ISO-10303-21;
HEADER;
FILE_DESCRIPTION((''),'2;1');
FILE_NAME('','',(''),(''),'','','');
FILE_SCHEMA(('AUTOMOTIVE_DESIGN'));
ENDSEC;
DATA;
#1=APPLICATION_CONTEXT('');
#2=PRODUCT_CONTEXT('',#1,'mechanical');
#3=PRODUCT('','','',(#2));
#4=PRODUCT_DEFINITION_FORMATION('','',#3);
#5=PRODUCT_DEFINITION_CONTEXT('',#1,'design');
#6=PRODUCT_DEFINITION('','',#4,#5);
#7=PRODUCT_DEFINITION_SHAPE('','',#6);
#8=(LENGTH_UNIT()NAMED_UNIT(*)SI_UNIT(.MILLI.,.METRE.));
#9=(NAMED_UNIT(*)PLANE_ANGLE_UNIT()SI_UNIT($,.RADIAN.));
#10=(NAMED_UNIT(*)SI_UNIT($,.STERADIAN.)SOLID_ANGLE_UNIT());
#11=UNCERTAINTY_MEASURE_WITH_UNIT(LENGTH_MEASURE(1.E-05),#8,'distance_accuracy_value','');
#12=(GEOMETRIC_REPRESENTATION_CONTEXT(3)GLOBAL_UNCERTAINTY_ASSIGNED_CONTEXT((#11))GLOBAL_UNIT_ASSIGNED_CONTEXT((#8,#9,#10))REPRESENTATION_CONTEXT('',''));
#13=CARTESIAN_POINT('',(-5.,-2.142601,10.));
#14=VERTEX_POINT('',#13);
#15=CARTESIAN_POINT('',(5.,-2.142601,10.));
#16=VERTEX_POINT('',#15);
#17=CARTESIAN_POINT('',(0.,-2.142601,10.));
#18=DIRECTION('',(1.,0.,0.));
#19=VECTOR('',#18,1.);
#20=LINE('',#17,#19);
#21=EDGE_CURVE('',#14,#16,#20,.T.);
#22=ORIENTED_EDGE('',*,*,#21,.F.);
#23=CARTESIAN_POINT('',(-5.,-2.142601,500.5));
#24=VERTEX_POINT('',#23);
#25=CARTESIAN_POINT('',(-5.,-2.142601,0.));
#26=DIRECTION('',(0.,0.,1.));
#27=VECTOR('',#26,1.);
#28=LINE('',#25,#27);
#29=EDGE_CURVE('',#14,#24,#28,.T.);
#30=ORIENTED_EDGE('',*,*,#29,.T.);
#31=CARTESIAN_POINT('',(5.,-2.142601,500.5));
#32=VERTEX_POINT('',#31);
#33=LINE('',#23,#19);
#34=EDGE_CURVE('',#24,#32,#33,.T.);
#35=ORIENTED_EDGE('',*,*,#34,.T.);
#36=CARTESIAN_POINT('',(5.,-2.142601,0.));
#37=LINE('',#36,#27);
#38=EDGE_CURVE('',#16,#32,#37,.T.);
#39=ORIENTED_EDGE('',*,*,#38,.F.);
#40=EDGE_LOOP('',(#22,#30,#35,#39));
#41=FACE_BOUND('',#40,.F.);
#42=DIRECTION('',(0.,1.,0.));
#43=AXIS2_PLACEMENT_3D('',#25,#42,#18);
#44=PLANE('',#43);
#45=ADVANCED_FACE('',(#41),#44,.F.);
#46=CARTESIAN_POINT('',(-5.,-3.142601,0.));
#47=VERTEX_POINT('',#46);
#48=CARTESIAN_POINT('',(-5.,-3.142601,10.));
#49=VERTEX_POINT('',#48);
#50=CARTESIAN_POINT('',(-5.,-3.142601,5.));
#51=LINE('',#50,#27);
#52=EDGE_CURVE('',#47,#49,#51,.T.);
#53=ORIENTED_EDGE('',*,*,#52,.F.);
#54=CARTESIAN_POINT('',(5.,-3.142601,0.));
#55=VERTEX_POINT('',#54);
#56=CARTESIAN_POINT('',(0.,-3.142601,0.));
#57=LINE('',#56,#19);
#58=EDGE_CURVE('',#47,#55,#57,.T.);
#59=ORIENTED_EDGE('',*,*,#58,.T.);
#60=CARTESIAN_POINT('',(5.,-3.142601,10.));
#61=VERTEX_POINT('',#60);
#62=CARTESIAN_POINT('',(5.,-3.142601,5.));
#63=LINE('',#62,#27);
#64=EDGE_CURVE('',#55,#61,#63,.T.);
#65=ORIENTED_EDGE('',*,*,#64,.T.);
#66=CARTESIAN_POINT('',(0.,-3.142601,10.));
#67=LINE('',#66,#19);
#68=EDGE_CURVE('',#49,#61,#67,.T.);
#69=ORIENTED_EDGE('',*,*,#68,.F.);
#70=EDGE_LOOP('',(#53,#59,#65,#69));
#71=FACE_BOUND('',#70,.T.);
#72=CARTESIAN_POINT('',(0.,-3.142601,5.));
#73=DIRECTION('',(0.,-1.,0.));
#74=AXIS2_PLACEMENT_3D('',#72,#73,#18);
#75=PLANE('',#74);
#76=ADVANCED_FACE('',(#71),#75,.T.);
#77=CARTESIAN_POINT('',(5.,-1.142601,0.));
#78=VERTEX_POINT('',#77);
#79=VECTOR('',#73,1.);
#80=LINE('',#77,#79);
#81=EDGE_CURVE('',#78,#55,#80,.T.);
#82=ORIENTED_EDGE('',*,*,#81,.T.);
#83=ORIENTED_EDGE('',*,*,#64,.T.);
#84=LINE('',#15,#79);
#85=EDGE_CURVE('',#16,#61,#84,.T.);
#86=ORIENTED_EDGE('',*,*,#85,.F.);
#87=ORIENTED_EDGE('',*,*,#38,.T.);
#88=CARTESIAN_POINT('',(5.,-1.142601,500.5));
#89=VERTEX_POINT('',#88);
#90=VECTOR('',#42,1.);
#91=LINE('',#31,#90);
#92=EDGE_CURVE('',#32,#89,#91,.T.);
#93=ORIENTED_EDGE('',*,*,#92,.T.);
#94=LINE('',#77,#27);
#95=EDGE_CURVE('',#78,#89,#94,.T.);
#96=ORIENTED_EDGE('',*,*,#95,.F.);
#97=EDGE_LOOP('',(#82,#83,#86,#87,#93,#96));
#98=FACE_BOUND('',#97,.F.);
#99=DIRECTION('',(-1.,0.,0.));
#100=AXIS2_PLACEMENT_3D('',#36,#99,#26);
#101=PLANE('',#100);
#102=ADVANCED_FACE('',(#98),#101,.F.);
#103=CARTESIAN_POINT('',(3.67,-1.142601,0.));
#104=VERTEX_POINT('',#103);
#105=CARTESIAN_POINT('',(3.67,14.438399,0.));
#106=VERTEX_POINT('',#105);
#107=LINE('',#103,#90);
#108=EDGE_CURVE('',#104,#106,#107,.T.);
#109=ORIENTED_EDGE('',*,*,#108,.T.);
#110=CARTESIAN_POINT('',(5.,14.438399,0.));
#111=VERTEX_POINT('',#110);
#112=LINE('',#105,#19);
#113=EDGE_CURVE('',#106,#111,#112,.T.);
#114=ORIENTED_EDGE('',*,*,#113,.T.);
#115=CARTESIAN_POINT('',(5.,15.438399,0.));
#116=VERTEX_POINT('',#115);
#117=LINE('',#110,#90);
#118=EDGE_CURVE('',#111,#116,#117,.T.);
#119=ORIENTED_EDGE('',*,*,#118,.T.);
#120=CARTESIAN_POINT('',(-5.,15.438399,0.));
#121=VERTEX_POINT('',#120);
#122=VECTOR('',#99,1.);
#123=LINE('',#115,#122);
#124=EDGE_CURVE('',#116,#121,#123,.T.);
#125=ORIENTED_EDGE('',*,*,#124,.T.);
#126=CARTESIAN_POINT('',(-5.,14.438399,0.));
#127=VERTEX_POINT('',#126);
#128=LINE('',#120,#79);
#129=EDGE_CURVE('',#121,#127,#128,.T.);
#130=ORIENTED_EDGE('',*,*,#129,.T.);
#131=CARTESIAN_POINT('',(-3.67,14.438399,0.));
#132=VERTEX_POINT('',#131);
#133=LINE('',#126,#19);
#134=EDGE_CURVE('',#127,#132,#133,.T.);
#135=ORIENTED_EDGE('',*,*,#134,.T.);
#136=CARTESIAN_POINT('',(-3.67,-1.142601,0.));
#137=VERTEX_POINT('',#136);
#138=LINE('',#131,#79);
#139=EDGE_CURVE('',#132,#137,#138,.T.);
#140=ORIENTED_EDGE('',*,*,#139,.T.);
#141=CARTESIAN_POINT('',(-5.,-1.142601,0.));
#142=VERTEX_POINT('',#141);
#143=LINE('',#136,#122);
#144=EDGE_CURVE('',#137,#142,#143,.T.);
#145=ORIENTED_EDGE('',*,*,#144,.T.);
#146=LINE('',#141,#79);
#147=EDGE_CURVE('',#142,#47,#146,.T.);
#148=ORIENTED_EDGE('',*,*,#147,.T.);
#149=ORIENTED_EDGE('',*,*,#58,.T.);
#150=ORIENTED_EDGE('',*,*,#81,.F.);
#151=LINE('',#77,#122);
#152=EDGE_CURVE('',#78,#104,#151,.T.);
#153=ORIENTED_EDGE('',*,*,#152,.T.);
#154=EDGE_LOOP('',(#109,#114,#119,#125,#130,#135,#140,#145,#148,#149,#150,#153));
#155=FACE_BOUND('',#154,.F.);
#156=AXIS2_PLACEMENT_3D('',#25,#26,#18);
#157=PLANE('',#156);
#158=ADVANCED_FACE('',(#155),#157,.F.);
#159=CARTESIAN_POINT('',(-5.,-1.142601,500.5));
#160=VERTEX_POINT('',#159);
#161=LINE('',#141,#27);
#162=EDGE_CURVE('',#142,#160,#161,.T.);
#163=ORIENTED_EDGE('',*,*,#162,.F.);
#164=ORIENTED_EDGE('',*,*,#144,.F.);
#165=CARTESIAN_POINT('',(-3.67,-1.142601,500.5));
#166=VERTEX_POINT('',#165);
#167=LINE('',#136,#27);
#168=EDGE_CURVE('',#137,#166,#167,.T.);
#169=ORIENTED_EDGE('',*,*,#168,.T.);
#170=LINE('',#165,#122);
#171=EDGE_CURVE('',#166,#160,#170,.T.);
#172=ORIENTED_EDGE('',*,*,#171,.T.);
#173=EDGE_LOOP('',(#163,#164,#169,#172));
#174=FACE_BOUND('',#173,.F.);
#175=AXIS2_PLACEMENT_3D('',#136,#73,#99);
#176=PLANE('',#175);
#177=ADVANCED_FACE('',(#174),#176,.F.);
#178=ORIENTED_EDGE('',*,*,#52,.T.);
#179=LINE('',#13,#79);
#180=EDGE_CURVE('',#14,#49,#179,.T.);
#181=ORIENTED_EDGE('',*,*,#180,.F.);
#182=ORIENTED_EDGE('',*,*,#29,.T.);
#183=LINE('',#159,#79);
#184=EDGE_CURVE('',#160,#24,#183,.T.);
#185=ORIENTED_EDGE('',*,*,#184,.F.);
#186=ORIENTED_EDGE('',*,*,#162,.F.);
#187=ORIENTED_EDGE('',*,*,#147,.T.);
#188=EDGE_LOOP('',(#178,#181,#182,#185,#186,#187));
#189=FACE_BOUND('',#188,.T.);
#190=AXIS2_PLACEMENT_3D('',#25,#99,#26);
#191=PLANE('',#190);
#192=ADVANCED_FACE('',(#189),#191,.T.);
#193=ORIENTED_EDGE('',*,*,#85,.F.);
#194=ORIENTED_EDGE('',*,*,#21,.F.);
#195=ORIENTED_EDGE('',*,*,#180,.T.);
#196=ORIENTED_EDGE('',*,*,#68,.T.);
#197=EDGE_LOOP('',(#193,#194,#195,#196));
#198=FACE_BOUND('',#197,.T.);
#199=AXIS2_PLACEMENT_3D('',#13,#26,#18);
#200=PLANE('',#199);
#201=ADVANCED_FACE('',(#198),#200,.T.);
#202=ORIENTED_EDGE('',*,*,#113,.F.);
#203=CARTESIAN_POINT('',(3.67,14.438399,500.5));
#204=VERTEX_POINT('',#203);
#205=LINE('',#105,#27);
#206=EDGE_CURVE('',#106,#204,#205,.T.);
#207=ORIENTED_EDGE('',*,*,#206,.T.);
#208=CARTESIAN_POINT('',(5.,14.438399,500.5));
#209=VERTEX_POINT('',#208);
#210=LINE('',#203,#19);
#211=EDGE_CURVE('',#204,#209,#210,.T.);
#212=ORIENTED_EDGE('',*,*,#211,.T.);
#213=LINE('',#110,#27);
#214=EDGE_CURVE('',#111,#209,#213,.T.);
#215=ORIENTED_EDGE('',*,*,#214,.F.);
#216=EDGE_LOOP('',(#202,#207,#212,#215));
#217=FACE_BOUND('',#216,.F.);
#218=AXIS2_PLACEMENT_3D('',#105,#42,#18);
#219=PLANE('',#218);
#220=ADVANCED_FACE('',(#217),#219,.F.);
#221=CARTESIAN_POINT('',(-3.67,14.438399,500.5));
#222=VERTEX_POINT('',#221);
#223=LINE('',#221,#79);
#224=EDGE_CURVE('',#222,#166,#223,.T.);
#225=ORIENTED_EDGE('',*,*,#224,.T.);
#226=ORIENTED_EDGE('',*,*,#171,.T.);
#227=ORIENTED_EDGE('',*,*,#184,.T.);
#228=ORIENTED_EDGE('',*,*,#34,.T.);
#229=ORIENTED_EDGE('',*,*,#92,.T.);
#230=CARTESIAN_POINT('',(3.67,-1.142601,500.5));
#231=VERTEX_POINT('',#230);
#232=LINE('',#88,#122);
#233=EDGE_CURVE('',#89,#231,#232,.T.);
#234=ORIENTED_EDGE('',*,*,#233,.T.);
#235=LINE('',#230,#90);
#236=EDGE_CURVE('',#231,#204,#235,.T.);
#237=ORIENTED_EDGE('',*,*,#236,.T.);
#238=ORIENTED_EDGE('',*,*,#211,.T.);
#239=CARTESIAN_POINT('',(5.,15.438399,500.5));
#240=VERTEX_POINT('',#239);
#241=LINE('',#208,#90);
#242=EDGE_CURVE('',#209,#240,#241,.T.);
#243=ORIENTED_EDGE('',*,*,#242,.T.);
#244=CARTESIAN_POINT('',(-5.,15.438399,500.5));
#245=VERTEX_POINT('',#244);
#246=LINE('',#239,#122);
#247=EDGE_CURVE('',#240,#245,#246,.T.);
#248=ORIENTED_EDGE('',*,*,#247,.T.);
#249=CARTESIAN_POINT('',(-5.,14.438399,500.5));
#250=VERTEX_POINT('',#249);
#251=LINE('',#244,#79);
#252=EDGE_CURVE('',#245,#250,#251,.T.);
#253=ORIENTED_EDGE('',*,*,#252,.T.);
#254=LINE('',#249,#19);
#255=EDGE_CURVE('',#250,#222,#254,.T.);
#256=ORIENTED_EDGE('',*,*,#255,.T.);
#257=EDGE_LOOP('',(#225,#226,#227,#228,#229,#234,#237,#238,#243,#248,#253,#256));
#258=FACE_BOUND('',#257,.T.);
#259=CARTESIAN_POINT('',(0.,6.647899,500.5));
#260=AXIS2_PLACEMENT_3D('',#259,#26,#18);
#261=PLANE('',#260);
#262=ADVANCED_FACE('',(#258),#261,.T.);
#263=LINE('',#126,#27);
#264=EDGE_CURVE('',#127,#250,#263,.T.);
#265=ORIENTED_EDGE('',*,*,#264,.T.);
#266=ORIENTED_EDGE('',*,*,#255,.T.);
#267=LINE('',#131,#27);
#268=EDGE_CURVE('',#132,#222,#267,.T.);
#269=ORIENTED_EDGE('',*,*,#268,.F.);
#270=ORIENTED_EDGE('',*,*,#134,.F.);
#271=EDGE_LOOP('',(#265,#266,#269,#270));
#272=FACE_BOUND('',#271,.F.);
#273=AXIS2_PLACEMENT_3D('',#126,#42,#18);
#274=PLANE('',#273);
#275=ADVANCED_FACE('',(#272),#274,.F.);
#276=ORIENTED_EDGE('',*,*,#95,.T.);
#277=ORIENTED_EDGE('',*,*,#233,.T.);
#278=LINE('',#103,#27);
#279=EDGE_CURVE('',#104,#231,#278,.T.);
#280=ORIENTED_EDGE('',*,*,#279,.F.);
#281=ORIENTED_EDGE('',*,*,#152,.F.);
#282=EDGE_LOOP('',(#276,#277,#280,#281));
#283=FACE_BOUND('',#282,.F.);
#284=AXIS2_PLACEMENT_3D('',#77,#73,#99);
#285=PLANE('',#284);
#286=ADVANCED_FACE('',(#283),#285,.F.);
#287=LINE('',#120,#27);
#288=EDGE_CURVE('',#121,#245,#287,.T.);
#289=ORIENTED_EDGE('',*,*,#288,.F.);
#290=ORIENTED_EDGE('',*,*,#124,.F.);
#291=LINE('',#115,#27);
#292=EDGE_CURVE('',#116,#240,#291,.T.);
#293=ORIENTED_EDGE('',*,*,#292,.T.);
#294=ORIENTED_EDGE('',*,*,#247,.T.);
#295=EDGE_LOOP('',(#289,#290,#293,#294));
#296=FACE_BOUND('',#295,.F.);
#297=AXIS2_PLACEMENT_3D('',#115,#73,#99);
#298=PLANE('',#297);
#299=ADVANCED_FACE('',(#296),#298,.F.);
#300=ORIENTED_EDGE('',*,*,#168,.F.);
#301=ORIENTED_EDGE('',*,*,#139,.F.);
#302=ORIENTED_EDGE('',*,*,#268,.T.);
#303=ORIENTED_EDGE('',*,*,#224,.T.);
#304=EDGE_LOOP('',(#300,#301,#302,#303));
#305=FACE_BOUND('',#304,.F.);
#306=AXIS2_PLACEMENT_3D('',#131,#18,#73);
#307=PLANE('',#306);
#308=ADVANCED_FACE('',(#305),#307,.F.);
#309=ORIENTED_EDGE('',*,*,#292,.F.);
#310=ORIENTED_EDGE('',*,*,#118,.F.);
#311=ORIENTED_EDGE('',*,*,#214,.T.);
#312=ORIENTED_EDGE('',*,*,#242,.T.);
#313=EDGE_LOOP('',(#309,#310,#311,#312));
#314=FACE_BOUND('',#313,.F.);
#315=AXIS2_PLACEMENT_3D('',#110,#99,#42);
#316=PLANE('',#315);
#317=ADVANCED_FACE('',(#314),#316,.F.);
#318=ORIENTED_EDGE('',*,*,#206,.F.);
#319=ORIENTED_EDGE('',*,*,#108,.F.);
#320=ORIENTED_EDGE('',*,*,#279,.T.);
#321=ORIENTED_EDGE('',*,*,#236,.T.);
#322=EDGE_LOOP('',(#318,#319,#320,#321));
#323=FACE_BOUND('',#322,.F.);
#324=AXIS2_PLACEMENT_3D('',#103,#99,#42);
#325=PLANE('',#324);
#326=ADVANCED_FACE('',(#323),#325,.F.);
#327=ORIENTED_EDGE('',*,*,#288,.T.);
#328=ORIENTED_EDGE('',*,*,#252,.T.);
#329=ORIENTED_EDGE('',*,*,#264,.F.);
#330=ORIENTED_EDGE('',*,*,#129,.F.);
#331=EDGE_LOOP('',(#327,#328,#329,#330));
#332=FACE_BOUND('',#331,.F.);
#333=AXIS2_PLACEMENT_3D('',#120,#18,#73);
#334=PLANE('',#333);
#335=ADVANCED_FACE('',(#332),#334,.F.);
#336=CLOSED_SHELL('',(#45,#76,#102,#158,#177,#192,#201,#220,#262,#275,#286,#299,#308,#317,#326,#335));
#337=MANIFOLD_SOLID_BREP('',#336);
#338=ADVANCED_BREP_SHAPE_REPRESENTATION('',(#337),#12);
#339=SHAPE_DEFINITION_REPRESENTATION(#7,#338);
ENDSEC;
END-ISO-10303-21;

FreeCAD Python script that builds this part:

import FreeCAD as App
import Part
import Sketcher

V = App.Vector
Q = App.Units.Quantity


def add_polygon(sketch, points):
    """Adds a closed chain of lines whose ends are joined by coincident constraints."""
    first, n = sketch.GeometryCount, len(points)
    for a, b in zip(points, points[1:] + points[:1]):
        sketch.addGeometry(Part.LineSegment(App.Vector(*a, 0), App.Vector(*b, 0)), False)
    for i in range(n):
        sketch.addConstraint(Sketcher.Constraint("Coincident", first + i, 2, first + (i + 1) % n, 1))

doc = App.newDocument("Part")
body = doc.addObject("PartDesign::Body", "Body")

sketch1 = body.newObject("Sketcher::SketchObject", "Sketch")
sketch1.AttachmentSupport = (doc.getObject("XY_Plane"), [""])
sketch1.MapMode = "FlatFace"
add_polygon(sketch1, [(5, 15.4), (-5, 15.4), (-5, 14.4), (-3.7, 14.4), (-3.7, -1.1), (-5, -1.1), (-5, -2.1), (5, -2.1), (5, -1.1), (3.7, -1.1), (3.7, 14.4), (5, 14.4)])
sketch1.addConstraint(Sketcher.Constraint("Horizontal", 0))
sketch1.addConstraint(Sketcher.Constraint("Vertical", 1))
sketch1.addConstraint(Sketcher.Constraint("Horizontal", 2))
sketch1.addConstraint(Sketcher.Constraint("Vertical", 3))
sketch1.addConstraint(Sketcher.Constraint("Horizontal", 4))
sketch1.addConstraint(Sketcher.Constraint("Vertical", 5))
sketch1.addConstraint(Sketcher.Constraint("Horizontal", 6))
sketch1.addConstraint(Sketcher.Constraint("Vertical", 7))
sketch1.addConstraint(Sketcher.Constraint("Horizontal", 8))
sketch1.addConstraint(Sketcher.Constraint("Vertical", 9))
sketch1.addConstraint(Sketcher.Constraint("Horizontal", 10))
sketch1.addConstraint(Sketcher.Constraint("Vertical", 11))
sketch1.addConstraint(Sketcher.Constraint("Symmetric", 4, 2, 7, 2, -2))
sketch1.addConstraint(Sketcher.Constraint("Symmetric", 2, 2, 9, 2, -2))
sketch1.addConstraint(Sketcher.Constraint("Vertical", 1, 2, 4, 2))
sketch1.addConstraint(Sketcher.Constraint("Vertical", 7, 2, 10, 2))
sketch1.addConstraint(Sketcher.Constraint("Equal", 1, 5))
sketch1.addConstraint(Sketcher.Constraint("DistanceX", 0, 2, 0, 1, Q("10 mm")))
sketch1.addConstraint(Sketcher.Constraint("DistanceY", 1, 2, 1, 1, Q("1 mm")))
sketch1.addConstraint(Sketcher.Constraint("DistanceX", 2, 1, 2, 2, Q("1.33 mm")))
sketch1.addConstraint(Sketcher.Constraint("DistanceY", 3, 2, 3, 1, Q("15.581 mm")))
sketch1.addConstraint(Sketcher.Constraint("DistanceY", -1, 1, 0, 2, Q("15.438399 mm")))
pad1 = body.newObject("PartDesign::Pad", "Pad")
pad1.Profile = sketch1
pad1.Length = 500.5

sketch2 = body.newObject("Sketcher::SketchObject", "Sketch001")
sketch2.AttachmentSupport = (doc.getObject("XZ_Plane"), [""])
sketch2.MapMode = "FlatFace"
sketch2.AttachmentOffset = App.Placement(V(0, 0, 2.142601), App.Rotation())
add_polygon(sketch2, [(-5, 10), (-5, 0), (5, 0), (5, 10)])
sketch2.addConstraint(Sketcher.Constraint("Vertical", 0))
sketch2.addConstraint(Sketcher.Constraint("Horizontal", 1))
sketch2.addConstraint(Sketcher.Constraint("Vertical", 2))
sketch2.addConstraint(Sketcher.Constraint("Horizontal", 3))
sketch2.addConstraint(Sketcher.Constraint("Symmetric", 0, 2, 1, 2, -1, 1))
sketch2.addConstraint(Sketcher.Constraint("Equal", 3, 0))
sketch2.addConstraint(Sketcher.Constraint("DistanceX", 1, 1, 1, 2, Q("10 mm")))
pad2 = body.newObject("PartDesign::Pad", "Pad001")
pad2.Profile = sketch2
pad2.Length = 1

doc.recompute()
